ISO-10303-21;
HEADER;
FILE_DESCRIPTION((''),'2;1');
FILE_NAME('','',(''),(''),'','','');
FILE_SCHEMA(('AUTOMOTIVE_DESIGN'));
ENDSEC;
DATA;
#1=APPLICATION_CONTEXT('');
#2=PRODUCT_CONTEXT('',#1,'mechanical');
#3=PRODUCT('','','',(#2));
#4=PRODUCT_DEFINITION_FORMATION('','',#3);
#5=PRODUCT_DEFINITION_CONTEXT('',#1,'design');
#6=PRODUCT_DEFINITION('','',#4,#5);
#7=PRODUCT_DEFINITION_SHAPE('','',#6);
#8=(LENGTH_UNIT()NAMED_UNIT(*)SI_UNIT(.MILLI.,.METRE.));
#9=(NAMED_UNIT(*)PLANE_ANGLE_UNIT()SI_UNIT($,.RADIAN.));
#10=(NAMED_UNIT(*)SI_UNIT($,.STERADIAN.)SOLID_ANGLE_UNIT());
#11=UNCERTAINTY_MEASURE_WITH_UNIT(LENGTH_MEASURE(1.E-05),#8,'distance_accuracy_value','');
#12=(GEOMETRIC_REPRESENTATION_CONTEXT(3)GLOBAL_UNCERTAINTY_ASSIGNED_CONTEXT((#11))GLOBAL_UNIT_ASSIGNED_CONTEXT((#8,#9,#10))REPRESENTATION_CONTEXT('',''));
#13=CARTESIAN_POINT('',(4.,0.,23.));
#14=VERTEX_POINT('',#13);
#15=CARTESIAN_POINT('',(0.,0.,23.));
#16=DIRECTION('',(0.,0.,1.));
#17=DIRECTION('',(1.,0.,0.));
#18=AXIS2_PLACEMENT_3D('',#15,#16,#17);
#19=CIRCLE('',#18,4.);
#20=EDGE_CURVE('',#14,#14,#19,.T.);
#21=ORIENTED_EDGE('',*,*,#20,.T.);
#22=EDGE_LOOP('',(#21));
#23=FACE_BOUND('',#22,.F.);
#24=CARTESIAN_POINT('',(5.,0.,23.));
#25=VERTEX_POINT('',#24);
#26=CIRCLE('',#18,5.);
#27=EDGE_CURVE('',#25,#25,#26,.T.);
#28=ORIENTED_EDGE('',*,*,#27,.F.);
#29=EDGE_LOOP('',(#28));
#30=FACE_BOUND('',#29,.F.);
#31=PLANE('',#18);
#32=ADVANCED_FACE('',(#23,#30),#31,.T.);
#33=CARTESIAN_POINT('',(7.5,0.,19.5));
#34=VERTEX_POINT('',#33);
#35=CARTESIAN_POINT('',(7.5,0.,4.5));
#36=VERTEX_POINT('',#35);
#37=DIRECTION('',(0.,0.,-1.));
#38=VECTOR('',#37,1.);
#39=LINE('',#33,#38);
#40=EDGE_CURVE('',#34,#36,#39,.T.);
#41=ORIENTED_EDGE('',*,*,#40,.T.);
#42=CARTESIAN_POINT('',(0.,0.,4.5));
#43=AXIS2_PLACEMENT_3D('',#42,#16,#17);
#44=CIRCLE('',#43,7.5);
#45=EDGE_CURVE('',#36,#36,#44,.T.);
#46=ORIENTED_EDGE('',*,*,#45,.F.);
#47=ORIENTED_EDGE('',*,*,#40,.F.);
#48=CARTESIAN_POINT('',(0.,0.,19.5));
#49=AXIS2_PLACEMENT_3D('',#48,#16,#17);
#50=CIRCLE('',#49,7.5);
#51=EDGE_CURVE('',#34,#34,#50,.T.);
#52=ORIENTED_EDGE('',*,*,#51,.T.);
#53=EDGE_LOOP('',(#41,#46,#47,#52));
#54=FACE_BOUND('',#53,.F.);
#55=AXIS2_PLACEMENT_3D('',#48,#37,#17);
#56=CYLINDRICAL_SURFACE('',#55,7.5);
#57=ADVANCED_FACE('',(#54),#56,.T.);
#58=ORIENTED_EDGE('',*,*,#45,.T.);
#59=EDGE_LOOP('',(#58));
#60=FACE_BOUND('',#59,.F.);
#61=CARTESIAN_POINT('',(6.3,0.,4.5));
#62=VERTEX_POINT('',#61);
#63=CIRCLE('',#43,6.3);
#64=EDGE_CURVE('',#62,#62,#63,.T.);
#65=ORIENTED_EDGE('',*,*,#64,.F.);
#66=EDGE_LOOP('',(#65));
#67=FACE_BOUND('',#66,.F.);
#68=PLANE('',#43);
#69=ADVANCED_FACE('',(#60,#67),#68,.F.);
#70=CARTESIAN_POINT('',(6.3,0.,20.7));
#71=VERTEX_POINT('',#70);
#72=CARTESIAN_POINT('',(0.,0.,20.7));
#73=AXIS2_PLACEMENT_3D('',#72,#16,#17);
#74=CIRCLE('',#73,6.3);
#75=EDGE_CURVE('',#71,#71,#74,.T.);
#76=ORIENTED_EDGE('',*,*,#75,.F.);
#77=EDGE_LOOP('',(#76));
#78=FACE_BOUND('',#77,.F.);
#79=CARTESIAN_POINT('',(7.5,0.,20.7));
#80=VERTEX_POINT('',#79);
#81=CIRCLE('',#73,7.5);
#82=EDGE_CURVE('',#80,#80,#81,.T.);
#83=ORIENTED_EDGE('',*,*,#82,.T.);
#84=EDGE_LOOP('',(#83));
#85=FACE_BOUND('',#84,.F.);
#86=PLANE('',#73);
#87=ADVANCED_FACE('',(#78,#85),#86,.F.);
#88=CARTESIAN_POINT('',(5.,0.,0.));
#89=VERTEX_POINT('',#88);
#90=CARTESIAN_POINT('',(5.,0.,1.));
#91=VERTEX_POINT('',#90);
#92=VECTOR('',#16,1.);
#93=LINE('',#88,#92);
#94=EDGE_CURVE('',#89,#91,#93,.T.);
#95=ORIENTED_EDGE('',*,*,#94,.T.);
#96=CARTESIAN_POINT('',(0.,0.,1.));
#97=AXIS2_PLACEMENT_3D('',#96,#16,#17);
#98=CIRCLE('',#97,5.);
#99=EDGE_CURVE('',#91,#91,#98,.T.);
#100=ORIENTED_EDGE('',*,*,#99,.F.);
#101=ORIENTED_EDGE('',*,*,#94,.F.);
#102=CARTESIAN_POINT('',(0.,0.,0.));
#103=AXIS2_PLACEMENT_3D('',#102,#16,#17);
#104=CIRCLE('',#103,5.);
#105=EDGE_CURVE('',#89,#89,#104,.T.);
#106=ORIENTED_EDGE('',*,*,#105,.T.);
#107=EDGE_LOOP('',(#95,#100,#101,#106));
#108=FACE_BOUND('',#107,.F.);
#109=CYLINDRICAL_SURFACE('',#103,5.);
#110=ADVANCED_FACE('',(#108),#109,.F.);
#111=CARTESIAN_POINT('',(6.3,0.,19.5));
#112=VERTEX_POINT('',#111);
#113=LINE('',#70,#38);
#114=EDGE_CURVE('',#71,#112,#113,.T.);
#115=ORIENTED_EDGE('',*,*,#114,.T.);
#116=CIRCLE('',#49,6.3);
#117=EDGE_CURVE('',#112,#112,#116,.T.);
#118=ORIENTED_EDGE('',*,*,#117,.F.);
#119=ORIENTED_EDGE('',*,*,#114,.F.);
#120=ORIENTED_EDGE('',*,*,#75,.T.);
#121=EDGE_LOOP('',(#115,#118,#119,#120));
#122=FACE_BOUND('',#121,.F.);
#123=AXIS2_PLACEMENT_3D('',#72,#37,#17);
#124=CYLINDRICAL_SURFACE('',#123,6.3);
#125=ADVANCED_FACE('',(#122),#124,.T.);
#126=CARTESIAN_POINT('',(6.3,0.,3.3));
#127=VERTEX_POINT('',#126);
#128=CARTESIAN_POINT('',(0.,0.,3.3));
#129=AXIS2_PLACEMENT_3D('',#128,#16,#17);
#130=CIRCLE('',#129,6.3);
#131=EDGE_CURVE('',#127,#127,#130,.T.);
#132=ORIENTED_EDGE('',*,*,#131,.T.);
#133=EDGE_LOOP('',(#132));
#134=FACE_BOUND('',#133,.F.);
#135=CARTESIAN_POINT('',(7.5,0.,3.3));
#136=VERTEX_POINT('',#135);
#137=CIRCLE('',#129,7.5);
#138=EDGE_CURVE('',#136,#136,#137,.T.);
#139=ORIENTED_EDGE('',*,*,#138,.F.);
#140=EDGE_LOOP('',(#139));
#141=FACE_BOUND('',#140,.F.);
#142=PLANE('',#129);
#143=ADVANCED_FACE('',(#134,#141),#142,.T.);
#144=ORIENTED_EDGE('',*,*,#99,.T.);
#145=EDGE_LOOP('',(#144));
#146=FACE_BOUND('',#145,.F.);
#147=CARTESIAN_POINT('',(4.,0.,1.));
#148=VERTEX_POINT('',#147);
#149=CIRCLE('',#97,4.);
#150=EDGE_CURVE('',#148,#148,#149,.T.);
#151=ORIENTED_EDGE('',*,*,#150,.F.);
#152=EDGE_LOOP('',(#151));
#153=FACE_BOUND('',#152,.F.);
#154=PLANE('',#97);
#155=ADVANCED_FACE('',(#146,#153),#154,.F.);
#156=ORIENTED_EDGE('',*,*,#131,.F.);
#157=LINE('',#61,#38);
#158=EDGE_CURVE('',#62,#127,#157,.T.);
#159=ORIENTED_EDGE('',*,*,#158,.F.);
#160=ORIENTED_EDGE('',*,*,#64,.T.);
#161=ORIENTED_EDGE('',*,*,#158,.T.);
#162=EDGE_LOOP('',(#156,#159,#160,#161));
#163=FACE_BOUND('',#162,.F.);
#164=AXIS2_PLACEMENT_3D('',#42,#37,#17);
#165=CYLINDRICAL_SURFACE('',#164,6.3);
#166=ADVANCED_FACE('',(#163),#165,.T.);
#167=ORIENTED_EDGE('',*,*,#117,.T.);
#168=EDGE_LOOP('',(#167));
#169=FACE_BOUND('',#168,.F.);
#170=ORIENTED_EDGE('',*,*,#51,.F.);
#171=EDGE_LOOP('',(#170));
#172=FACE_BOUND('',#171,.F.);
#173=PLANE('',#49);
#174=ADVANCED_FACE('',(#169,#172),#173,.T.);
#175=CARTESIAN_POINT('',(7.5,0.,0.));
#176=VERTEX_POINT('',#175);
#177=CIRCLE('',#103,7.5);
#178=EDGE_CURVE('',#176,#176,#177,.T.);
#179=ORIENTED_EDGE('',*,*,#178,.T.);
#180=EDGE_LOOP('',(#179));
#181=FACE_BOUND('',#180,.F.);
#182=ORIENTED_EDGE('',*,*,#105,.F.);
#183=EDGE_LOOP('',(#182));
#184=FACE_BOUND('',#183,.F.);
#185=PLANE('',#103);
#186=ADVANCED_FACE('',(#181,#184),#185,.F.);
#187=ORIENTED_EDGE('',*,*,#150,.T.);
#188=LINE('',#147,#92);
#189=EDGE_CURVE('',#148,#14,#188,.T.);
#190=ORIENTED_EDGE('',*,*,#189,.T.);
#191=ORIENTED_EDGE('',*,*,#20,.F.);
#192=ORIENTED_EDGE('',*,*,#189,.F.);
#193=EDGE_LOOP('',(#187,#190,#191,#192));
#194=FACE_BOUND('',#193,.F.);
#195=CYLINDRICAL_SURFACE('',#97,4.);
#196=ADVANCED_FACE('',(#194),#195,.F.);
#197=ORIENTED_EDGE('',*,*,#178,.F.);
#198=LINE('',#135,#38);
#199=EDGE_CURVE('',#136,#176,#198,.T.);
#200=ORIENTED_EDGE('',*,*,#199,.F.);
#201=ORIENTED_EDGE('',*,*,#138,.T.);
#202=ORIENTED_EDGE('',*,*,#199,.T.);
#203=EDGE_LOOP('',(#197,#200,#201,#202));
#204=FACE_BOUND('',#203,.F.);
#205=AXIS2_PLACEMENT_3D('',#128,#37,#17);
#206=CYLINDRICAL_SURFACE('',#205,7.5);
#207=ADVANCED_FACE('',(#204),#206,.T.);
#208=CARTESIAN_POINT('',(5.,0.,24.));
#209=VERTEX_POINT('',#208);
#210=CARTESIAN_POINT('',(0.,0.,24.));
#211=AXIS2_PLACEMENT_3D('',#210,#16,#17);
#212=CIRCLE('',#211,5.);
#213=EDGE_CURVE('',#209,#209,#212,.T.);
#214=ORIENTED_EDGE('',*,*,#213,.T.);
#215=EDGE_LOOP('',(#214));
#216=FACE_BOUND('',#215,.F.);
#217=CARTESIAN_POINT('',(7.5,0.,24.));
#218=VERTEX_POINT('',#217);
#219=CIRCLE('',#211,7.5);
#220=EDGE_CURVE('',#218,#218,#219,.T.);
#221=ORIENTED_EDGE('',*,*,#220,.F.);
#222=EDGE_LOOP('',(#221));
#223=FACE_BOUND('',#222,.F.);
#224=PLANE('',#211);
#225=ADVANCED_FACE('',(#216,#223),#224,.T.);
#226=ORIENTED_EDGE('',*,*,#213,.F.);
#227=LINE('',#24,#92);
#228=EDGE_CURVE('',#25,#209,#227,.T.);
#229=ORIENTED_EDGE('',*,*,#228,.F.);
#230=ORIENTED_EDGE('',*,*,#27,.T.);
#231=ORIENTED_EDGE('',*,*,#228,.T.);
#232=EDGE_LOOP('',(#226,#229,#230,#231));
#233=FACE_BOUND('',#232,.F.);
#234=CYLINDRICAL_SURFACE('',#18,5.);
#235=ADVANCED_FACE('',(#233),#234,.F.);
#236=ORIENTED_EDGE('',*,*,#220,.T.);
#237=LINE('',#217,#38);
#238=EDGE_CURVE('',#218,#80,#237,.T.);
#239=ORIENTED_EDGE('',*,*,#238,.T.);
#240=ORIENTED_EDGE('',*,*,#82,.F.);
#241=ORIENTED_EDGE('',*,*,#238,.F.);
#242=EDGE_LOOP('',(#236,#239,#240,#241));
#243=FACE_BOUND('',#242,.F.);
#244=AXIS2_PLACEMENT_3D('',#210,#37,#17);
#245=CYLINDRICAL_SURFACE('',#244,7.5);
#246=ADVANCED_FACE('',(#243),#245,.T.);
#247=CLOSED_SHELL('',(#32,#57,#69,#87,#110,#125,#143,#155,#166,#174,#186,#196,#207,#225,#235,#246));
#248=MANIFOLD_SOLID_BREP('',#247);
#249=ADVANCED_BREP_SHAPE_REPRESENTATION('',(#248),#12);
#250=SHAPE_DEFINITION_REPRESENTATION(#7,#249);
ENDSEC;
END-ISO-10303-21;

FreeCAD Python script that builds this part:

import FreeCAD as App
import Part
import Sketcher

V = App.Vector
Q = App.Units.Quantity

doc = App.newDocument("Part")
body = doc.addObject("PartDesign::Body", "Body")

# Sketch on XZ plane
sketch1 = body.newObject("Sketcher::SketchObject", "Sketch")
sketch1.AttachmentSupport = (doc.getObject("XZ_Plane"), [""])
sketch1.MapMode = "FlatFace"
sketch1.addGeometry([
    Part.LineSegment(V(4, 23, 0), V(4, 1, 0)),  # 0
    Part.LineSegment(V(4, 1, 0), V(5, 1, 0)),  # 1
    Part.LineSegment(V(5, 1, 0), V(5, 0, 0)),  # 2
    Part.LineSegment(V(5, 0, 0), V(7.5, 0, 0)),  # 3
    Part.LineSegment(V(7.5, 0, 0), V(7.5, 3.3, 0)),  # 4
    Part.LineSegment(V(7.5, 3.3, 0), V(6.3, 3.3, 0)),  # 5
    Part.LineSegment(V(6.3, 3.3, 0), V(6.3, 4.5, 0)),  # 6
    Part.LineSegment(V(6.3, 4.5, 0), V(7.5, 4.5, 0)),  # 7
    Part.LineSegment(V(7.5, 4.5, 0), V(7.5, 19.5, 0)),  # 8
    Part.LineSegment(V(7.5, 19.5, 0), V(6.3, 19.5, 0)),  # 9
    Part.LineSegment(V(6.3, 19.5, 0), V(6.3, 20.7, 0)),  # 10
    Part.LineSegment(V(6.3, 20.7, 0), V(7.5, 20.7, 0)),  # 11
    Part.LineSegment(V(7.5, 20.7, 0), V(7.5, 24, 0)),  # 12
    Part.LineSegment(V(7.5, 24, 0), V(5, 24, 0)),  # 13
    Part.LineSegment(V(5, 24, 0), V(5, 23, 0)),  # 14
    Part.LineSegment(V(5, 23, 0), V(4, 23, 0)),  # 15
], False)
sketch1.addConstraint([
    Sketcher.Constraint("Coincident", 0, 2, 1, 1),
    Sketcher.Constraint("Coincident", 1, 2, 2, 1),
    Sketcher.Constraint("Coincident", 2, 2, 3, 1),
    Sketcher.Constraint("Coincident", 3, 2, 4, 1),
    Sketcher.Constraint("Coincident", 4, 2, 5, 1),
    Sketcher.Constraint("Coincident", 5, 2, 6, 1),
    Sketcher.Constraint("Coincident", 6, 2, 7, 1),
    Sketcher.Constraint("Coincident", 7, 2, 8, 1),
    Sketcher.Constraint("Coincident", 8, 2, 9, 1),
    Sketcher.Constraint("Coincident", 9, 2, 10, 1),
    Sketcher.Constraint("Coincident", 10, 2, 11, 1),
    Sketcher.Constraint("Coincident", 11, 2, 12, 1),
    Sketcher.Constraint("Coincident", 12, 2, 13, 1),
    Sketcher.Constraint("Coincident", 13, 2, 14, 1),
    Sketcher.Constraint("Coincident", 14, 2, 15, 1),
    Sketcher.Constraint("Coincident", 15, 2, 0, 1),
    Sketcher.Constraint("Vertical", 0),
    Sketcher.Constraint("Horizontal", 1),
    Sketcher.Constraint("Vertical", 2),
    Sketcher.Constraint("Horizontal", 3),
    Sketcher.Constraint("Vertical", 4),
    Sketcher.Constraint("Horizontal", 5),
    Sketcher.Constraint("Vertical", 6),
    Sketcher.Constraint("Horizontal", 7),
    Sketcher.Constraint("Vertical", 8),
    Sketcher.Constraint("Horizontal", 9),
    Sketcher.Constraint("Vertical", 10),
    Sketcher.Constraint("Horizontal", 11),
    Sketcher.Constraint("Vertical", 12),
    Sketcher.Constraint("Horizontal", 13),
    Sketcher.Constraint("Vertical", 14),
    Sketcher.Constraint("Horizontal", 15),
    Sketcher.Constraint("PointOnObject", 2, 2, -1),
    Sketcher.Constraint("Vertical", 4, 2, 7, 2),
    Sketcher.Constraint("Vertical", 6, 2, 9, 2),
    Sketcher.Constraint("Vertical", 8, 2, 11, 2),
    Sketcher.Constraint("Vertical", 2, 2, 13, 2),
    Sketcher.Constraint("Equal", 15, 2),
    Sketcher.Constraint("Equal", 11, 6),
    Sketcher.Constraint("Equal", 6, 10),
    Sketcher.Constraint("Equal", 4, 12),
    Sketcher.Constraint("Equal", 2, 14),
    Sketcher.Constraint("DistanceX", 1, 1, 1, 2, Q("1 mm")),
    Sketcher.Constraint("DistanceY", 0, 2, 0, 1, Q("22 mm")),
    Sketcher.Constraint("DistanceY", 8, 1, 8, 2, Q("15 mm")),
    Sketcher.Constraint("DistanceX", 3, 1, 3, 2, Q("2.5 mm")),
    Sketcher.Constraint("DistanceX", 5, 2, 5, 1, Q("1.2 mm")),
    Sketcher.Constraint("DistanceX", -1, 1, 0, 2, Q("4 mm")),
])
revolution = body.newObject("PartDesign::Revolution", "Revolution")
revolution.Profile = sketch1
revolution.ReferenceAxis = (sketch1, ["V_Axis"])
revolution.Angle = 360

doc.recompute()
